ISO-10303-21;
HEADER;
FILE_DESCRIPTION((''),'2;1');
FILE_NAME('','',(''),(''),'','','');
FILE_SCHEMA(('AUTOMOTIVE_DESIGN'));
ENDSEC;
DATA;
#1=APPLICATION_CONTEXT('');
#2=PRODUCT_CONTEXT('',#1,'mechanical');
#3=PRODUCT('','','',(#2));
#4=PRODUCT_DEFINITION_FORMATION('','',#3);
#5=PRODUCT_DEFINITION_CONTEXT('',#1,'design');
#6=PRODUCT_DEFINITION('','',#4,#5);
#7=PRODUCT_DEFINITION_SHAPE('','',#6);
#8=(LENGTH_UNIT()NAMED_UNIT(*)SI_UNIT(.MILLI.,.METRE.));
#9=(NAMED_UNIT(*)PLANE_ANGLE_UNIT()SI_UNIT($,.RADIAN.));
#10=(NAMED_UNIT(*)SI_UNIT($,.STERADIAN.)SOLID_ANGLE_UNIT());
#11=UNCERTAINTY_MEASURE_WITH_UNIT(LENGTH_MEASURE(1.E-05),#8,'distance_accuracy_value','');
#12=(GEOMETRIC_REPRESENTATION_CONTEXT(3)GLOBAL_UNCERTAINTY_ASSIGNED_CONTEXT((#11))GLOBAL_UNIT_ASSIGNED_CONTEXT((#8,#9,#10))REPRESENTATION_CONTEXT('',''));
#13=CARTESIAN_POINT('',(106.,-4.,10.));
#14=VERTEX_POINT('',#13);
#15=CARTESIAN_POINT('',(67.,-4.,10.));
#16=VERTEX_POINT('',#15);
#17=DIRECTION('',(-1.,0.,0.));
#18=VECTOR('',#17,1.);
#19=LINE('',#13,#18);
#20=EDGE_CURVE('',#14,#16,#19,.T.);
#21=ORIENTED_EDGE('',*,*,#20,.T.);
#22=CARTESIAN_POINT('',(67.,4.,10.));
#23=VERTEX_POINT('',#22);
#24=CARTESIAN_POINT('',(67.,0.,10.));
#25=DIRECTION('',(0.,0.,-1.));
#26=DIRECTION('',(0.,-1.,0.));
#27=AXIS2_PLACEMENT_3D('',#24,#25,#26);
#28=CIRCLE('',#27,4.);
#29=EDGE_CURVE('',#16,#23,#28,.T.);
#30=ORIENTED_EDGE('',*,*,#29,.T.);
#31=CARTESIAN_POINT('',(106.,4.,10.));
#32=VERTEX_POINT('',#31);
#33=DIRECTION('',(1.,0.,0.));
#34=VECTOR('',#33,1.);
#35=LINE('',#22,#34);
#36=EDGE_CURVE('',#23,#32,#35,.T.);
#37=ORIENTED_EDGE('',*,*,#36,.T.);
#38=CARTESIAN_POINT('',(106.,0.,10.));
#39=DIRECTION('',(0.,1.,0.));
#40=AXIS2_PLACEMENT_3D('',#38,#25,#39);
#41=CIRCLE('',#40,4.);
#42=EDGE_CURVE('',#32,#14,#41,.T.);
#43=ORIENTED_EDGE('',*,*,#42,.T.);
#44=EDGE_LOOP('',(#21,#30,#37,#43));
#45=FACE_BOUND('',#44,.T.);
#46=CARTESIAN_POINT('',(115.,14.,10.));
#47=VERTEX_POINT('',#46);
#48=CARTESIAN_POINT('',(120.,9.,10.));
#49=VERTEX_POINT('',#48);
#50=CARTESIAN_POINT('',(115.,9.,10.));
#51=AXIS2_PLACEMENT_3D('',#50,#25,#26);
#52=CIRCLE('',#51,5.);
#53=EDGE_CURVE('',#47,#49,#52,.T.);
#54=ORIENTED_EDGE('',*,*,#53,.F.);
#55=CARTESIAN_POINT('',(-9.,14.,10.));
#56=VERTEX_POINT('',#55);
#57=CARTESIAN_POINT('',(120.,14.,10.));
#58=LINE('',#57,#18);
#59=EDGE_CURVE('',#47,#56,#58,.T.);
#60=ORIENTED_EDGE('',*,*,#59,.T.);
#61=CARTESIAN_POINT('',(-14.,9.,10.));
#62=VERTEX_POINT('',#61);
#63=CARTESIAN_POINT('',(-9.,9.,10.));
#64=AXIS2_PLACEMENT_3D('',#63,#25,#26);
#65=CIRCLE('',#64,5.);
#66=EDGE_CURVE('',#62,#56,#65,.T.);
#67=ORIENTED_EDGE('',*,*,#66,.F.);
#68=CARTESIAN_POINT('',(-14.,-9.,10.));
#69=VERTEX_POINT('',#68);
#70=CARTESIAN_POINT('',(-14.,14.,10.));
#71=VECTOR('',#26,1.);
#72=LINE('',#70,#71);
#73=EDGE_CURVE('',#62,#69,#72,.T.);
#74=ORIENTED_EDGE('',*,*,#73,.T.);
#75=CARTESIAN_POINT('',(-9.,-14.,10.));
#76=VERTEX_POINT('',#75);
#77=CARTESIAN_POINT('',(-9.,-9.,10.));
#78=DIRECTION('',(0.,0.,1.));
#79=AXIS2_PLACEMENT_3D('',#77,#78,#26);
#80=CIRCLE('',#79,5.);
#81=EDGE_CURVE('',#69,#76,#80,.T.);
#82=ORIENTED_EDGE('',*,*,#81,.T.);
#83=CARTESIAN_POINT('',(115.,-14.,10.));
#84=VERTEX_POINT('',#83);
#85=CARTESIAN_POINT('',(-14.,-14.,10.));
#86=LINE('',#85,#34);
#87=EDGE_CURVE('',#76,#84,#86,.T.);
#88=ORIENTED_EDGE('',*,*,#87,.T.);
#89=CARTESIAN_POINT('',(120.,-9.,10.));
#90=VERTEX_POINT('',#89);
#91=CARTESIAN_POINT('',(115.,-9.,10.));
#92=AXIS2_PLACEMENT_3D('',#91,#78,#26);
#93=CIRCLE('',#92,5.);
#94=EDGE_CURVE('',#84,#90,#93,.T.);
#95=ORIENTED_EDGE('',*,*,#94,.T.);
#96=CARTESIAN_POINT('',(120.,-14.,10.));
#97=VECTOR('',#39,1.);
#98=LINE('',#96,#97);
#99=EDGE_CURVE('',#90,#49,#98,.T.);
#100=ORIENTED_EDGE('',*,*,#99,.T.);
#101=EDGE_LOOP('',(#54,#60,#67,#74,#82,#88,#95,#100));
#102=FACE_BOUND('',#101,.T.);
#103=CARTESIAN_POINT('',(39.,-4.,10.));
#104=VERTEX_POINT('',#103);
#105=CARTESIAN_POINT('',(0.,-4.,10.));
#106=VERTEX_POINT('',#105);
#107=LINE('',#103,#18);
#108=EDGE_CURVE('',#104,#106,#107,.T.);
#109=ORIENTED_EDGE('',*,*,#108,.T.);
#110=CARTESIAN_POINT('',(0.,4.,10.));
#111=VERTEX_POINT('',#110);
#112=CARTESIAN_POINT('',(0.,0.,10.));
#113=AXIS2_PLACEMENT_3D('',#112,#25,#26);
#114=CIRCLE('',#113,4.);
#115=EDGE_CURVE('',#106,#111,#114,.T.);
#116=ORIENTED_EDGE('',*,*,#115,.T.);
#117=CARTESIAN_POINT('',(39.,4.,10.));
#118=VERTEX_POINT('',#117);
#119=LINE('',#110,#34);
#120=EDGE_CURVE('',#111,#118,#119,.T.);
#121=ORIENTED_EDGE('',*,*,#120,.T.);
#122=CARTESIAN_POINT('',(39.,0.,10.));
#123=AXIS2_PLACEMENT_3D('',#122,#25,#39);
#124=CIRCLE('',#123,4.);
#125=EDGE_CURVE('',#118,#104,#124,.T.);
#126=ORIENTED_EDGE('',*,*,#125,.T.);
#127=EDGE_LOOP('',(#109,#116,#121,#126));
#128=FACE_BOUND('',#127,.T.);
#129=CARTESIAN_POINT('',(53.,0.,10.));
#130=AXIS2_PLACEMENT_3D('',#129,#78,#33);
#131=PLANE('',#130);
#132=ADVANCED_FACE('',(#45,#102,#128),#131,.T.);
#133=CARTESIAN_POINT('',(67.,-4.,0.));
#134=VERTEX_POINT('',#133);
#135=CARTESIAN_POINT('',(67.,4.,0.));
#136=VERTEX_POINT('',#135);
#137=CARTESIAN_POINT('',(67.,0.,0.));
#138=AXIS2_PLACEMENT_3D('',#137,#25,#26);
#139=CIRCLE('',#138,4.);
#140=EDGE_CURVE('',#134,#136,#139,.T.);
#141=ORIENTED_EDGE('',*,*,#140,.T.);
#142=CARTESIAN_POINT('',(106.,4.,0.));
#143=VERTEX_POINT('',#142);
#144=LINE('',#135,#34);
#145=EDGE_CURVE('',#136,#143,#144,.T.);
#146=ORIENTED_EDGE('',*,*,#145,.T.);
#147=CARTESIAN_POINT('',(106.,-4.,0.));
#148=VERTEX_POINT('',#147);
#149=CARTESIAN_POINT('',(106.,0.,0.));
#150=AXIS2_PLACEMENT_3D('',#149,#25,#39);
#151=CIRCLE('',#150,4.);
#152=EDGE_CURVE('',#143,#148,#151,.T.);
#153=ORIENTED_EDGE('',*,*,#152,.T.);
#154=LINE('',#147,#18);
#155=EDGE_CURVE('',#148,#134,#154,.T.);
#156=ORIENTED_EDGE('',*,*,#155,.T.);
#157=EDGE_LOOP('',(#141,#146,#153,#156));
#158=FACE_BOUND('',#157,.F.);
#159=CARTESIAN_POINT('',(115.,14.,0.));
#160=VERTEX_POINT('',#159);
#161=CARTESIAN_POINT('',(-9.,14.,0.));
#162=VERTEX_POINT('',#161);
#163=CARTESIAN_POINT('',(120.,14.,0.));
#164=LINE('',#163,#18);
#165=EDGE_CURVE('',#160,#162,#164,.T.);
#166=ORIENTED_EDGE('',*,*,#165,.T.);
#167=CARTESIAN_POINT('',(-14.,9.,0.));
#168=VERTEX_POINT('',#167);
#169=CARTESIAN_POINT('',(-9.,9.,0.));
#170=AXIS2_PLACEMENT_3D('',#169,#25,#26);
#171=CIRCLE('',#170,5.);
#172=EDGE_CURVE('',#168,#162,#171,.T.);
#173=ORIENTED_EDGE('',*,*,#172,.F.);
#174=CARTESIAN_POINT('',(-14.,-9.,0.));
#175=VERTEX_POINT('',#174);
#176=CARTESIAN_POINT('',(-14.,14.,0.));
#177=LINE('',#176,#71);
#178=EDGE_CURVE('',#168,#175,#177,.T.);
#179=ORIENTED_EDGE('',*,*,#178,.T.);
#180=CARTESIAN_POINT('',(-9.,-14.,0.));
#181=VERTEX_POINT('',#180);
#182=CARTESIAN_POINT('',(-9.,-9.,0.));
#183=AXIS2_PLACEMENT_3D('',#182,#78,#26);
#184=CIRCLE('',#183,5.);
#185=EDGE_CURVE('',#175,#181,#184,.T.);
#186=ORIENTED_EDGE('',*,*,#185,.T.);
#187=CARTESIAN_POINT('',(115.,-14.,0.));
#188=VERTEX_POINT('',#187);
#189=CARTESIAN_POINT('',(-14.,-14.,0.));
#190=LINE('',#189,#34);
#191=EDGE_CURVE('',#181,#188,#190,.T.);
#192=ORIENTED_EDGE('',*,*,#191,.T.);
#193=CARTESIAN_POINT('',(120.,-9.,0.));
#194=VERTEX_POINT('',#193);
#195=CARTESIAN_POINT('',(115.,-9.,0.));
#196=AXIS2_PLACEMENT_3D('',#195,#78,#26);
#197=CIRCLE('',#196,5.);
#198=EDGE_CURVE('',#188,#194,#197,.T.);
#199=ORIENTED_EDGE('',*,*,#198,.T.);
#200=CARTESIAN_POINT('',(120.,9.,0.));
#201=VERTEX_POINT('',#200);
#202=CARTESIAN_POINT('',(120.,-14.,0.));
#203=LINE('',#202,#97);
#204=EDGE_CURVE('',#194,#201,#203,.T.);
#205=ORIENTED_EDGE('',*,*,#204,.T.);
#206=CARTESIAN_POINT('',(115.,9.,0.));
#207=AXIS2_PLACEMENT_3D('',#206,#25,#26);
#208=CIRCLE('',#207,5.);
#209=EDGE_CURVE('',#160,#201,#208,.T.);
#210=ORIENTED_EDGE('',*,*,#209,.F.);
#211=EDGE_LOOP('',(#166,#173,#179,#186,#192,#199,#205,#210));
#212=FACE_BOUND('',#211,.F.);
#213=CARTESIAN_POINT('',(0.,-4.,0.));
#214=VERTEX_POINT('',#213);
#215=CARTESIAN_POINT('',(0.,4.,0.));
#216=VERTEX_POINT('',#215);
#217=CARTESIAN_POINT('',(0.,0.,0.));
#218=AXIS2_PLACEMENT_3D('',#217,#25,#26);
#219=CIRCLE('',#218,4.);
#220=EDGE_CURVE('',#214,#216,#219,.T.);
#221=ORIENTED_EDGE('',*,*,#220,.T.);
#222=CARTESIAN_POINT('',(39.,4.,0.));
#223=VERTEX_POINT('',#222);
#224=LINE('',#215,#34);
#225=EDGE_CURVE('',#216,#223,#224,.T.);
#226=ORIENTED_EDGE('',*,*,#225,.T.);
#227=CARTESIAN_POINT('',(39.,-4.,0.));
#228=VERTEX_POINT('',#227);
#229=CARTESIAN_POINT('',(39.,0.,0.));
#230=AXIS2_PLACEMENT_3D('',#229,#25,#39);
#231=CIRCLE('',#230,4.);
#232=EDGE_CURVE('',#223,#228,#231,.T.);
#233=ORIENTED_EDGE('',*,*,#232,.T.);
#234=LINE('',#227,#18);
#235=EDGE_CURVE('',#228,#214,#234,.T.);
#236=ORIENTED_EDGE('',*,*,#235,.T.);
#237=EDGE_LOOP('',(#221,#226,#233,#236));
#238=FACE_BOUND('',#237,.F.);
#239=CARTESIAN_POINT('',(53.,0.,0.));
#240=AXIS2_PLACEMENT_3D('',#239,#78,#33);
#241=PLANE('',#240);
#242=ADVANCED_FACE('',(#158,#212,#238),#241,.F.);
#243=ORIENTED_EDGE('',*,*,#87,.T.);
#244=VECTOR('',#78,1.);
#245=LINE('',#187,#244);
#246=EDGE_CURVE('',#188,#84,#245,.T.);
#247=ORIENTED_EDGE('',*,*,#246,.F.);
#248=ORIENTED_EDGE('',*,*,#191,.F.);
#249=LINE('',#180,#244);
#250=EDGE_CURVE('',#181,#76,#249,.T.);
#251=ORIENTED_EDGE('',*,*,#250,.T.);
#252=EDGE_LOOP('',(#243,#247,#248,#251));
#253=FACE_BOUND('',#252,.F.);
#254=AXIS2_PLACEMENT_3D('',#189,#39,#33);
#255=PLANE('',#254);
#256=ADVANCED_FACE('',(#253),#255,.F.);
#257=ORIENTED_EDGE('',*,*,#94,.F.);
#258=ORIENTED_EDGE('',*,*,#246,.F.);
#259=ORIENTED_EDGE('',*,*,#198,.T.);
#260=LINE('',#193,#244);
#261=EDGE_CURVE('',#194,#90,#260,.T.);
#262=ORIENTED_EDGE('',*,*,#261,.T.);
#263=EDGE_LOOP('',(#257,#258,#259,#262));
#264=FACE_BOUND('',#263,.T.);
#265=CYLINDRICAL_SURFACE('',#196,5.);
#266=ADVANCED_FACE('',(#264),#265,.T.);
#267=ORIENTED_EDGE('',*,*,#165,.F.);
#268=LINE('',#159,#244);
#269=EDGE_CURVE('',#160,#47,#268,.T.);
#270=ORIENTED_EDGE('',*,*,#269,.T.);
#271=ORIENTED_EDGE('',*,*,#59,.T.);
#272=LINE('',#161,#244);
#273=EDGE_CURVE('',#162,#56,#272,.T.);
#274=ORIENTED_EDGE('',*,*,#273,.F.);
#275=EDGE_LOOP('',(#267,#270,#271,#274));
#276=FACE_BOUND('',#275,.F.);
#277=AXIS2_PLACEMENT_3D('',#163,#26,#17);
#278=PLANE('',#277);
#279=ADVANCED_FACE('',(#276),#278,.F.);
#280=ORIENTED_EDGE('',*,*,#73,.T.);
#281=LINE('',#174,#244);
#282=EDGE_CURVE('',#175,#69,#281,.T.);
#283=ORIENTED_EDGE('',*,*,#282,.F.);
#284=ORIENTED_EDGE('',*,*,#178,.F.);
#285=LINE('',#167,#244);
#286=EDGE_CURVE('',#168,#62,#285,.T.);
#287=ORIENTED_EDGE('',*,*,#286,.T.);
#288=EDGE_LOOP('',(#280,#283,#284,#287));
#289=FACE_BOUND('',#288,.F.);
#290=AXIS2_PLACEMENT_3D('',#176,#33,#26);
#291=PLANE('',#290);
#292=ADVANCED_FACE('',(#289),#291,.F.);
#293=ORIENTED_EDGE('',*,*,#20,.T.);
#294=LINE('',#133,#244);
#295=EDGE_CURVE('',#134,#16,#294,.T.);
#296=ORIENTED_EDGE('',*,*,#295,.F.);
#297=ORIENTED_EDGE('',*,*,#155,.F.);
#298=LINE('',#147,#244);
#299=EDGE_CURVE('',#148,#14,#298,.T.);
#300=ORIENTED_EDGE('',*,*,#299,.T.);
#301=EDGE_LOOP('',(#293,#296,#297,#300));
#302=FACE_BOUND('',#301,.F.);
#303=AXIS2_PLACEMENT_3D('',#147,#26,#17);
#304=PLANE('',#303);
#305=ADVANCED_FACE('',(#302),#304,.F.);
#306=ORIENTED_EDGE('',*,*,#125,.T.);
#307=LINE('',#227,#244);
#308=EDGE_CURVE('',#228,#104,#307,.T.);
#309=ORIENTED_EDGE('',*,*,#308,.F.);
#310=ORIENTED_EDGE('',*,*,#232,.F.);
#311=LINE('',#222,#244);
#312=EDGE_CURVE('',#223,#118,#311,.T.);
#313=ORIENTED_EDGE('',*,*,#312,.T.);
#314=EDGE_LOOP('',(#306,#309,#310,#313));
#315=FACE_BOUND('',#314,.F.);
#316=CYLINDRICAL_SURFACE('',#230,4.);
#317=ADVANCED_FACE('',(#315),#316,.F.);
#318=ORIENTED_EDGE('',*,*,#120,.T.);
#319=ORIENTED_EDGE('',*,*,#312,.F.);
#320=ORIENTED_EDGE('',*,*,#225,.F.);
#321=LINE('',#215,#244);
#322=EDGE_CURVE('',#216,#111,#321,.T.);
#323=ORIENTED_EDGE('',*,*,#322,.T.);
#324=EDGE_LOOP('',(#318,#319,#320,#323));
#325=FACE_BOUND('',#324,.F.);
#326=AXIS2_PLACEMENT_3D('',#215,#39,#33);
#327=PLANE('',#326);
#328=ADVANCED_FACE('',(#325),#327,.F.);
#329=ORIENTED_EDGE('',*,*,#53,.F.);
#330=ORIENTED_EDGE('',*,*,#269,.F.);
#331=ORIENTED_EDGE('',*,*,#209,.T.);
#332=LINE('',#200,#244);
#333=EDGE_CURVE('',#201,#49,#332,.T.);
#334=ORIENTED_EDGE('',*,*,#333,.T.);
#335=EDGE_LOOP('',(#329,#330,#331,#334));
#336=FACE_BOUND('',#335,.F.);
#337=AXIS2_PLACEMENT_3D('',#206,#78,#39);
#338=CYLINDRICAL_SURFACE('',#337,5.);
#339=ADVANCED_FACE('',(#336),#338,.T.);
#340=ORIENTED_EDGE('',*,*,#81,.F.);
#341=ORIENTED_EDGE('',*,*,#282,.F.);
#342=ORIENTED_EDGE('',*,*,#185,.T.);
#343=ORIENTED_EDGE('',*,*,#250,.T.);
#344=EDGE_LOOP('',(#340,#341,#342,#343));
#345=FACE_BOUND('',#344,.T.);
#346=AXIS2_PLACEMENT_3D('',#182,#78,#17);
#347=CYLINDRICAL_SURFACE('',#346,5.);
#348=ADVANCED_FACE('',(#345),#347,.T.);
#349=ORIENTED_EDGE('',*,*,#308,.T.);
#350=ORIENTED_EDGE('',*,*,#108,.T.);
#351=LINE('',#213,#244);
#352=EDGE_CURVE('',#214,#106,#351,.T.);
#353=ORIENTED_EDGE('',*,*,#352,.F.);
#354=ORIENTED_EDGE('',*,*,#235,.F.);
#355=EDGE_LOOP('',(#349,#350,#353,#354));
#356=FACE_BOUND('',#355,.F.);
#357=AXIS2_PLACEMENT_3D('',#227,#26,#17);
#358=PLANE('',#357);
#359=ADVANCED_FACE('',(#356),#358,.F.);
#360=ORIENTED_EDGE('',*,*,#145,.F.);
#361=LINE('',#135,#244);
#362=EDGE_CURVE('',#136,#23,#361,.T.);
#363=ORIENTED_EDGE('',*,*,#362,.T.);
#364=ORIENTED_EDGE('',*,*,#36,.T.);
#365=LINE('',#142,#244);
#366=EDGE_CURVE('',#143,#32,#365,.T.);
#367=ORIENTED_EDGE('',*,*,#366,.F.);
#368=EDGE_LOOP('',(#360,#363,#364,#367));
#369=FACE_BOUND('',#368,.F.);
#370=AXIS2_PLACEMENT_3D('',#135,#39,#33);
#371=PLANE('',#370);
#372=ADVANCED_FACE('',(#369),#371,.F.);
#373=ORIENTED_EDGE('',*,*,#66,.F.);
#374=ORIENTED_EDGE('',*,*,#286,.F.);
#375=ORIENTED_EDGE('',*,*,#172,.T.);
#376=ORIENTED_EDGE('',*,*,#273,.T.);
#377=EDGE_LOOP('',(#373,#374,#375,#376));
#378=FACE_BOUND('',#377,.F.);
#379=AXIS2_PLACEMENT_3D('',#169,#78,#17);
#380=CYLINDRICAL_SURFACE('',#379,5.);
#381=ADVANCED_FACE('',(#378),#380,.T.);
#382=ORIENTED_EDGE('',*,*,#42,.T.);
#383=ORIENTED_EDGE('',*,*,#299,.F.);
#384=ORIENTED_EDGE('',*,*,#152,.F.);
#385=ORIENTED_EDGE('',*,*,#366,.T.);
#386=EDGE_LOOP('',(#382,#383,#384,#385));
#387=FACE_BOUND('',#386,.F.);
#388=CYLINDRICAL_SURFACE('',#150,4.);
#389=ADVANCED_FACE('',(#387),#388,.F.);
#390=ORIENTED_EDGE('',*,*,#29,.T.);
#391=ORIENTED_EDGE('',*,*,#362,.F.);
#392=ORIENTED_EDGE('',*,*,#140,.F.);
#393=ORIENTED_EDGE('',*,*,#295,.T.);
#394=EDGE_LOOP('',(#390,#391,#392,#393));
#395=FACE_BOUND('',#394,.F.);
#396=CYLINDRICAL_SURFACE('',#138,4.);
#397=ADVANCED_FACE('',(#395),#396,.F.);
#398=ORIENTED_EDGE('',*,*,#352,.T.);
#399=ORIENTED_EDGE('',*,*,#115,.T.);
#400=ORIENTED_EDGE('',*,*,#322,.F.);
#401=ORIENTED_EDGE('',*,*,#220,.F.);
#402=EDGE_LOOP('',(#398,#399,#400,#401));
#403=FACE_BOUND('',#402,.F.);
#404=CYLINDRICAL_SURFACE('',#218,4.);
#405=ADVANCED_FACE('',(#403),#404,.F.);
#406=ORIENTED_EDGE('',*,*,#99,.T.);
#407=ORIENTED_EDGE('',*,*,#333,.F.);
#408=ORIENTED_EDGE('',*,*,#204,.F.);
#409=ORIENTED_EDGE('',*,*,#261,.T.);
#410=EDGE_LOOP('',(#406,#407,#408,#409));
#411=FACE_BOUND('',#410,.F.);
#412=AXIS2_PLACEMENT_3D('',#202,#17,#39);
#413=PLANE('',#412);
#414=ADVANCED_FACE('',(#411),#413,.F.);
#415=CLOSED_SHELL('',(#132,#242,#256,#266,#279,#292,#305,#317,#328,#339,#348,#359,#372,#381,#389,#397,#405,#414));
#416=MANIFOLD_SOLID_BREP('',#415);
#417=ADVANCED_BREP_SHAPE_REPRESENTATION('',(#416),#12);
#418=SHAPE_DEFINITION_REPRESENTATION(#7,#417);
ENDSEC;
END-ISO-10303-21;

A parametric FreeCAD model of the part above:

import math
import FreeCAD as App
import Part
import Sketcher


def edges_at(feature, points):
    """Names of the edges that pass closest to the given points."""
    edges = feature.Shape.Edges
    near = lambda p: min(range(len(edges)), key=lambda i: edges[i].distToShape(Part.Vertex(*p))[0])
    return sorted({f"Edge{near(p) + 1}" for p in points})


def add_polygon(sketch, points):
    """Adds a closed chain of lines whose ends are joined by coincident constraints."""
    first, n = sketch.GeometryCount, len(points)
    for a, b in zip(points, points[1:] + points[:1]):
        sketch.addGeometry(Part.LineSegment(App.Vector(*a, 0), App.Vector(*b, 0)), False)
    for i in range(n):
        sketch.addConstraint(Sketcher.Constraint("Coincident", first + i, 2, first + (i + 1) % n, 1))

doc = App.newDocument("Part")
body = doc.addObject("PartDesign::Body", "Body")

# Sketch on XY plane
sketch1 = body.newObject("Sketcher::SketchObject", "Sketch")
sketch1.AttachmentSupport = (doc.getObject("XY_Plane"), [""])
sketch1.MapMode = "FlatFace"
add_polygon(sketch1, [(-14, 14), (-14, -14), (120, -14), (120, 14)])  # lines 0-3
sketch1.addGeometry(Part.LineSegment(App.Vector(39, -4, 0), App.Vector(0, -4, 0)), False)  # 4
sketch1.addGeometry(Part.ArcOfCircle(Part.Circle(App.Vector(0, 0, 0), App.Vector(0, 0, 1), 4), math.radians(90), math.radians(270)), False)  # 5
sketch1.addGeometry(Part.LineSegment(App.Vector(0, 4, 0), App.Vector(39, 4, 0)), False)  # 6
sketch1.addGeometry(Part.ArcOfCircle(Part.Circle(App.Vector(39, 0, 0), App.Vector(0, 0, 1), 4), math.radians(-90), math.radians(90)), False)  # 7
sketch1.addGeometry(Part.ArcOfCircle(Part.Circle(App.Vector(67, 0, 0), App.Vector(0, 0, 1), 4), math.radians(90), math.radians(270)), False)  # 8
sketch1.addGeometry(Part.LineSegment(App.Vector(67, 4, 0), App.Vector(106, 4, 0)), False)  # 9
sketch1.addGeometry(Part.ArcOfCircle(Part.Circle(App.Vector(106, 0, 0), App.Vector(0, 0, 1), 4), math.radians(-90), math.radians(90)), False)  # 10
sketch1.addGeometry(Part.LineSegment(App.Vector(106, -4, 0), App.Vector(67, -4, 0)), False)  # 11
sketch1.addConstraint(Sketcher.Constraint("Tangent", 4, 2, 5, 2))
sketch1.addConstraint(Sketcher.Constraint("Tangent", 5, 1, 6, 1))
sketch1.addConstraint(Sketcher.Constraint("Tangent", 6, 2, 7, 2))
sketch1.addConstraint(Sketcher.Constraint("Tangent", 7, 1, 4, 1))
sketch1.addConstraint(Sketcher.Constraint("Tangent", 8, 1, 9, 1))
sketch1.addConstraint(Sketcher.Constraint("Tangent", 9, 2, 10, 2))
sketch1.addConstraint(Sketcher.Constraint("Tangent", 10, 1, 11, 1))
sketch1.addConstraint(Sketcher.Constraint("Tangent", 11, 2, 8, 2))
sketch1.addConstraint(Sketcher.Constraint("Vertical", 0))
sketch1.addConstraint(Sketcher.Constraint("Horizontal", 1))
sketch1.addConstraint(Sketcher.Constraint("Vertical", 2))
sketch1.addConstraint(Sketcher.Constraint("Horizontal", 3))
sketch1.addConstraint(Sketcher.Constraint("Horizontal", 4))
sketch1.addConstraint(Sketcher.Constraint("Horizontal", 6))
sketch1.addConstraint(Sketcher.Constraint("Horizontal", 9))
sketch1.addConstraint(Sketcher.Constraint("Horizontal", 11))
sketch1.addConstraint(Sketcher.Constraint("Coincident", 5, 3, -1, 1))
sketch1.addConstraint(Sketcher.Constraint("Equal", 7, 8))
sketch1.addConstraint(Sketcher.Constraint("PointOnObject", 8, 3, -1))
sketch1.addConstraint(Sketcher.Constraint("Equal", 6, 9))
sketch1.addConstraint(Sketcher.Constraint("Radius", 5, 4.0))
sketch1.addConstraint(Sketcher.Constraint("DistanceX", 1, 1, 1, 2, 134.0))
sketch1.addConstraint(Sketcher.Constraint("DistanceX", 4, 2, 4, 1, 39.0))
sketch1.addConstraint(Sketcher.Constraint("DistanceY", 0, 2, 0, 1, 28.0))
sketch1.addConstraint(Sketcher.Constraint("DistanceX", -1, 1, 8, 3, 67.0))
sketch1.addConstraint(Sketcher.Constraint("DistanceX", 0, 2, -1, 1, 14.0))
sketch1.addConstraint(Sketcher.Constraint("DistanceY", 0, 2, -1, 1, 14.0))
pad1 = body.newObject("PartDesign::Pad", "Pad")
pad1.Profile = sketch1
pad1.Length = 10
doc.recompute()

fillet = body.newObject("PartDesign::Fillet", "Fillet")
fillet.Base = (pad1, edges_at(pad1, [
    (-14, 14, 5),
    (-14, -14, 5),
    (120, -14, 5),
    (120, 14, 5),
]))
fillet.Radius = 5

doc.recompute()
